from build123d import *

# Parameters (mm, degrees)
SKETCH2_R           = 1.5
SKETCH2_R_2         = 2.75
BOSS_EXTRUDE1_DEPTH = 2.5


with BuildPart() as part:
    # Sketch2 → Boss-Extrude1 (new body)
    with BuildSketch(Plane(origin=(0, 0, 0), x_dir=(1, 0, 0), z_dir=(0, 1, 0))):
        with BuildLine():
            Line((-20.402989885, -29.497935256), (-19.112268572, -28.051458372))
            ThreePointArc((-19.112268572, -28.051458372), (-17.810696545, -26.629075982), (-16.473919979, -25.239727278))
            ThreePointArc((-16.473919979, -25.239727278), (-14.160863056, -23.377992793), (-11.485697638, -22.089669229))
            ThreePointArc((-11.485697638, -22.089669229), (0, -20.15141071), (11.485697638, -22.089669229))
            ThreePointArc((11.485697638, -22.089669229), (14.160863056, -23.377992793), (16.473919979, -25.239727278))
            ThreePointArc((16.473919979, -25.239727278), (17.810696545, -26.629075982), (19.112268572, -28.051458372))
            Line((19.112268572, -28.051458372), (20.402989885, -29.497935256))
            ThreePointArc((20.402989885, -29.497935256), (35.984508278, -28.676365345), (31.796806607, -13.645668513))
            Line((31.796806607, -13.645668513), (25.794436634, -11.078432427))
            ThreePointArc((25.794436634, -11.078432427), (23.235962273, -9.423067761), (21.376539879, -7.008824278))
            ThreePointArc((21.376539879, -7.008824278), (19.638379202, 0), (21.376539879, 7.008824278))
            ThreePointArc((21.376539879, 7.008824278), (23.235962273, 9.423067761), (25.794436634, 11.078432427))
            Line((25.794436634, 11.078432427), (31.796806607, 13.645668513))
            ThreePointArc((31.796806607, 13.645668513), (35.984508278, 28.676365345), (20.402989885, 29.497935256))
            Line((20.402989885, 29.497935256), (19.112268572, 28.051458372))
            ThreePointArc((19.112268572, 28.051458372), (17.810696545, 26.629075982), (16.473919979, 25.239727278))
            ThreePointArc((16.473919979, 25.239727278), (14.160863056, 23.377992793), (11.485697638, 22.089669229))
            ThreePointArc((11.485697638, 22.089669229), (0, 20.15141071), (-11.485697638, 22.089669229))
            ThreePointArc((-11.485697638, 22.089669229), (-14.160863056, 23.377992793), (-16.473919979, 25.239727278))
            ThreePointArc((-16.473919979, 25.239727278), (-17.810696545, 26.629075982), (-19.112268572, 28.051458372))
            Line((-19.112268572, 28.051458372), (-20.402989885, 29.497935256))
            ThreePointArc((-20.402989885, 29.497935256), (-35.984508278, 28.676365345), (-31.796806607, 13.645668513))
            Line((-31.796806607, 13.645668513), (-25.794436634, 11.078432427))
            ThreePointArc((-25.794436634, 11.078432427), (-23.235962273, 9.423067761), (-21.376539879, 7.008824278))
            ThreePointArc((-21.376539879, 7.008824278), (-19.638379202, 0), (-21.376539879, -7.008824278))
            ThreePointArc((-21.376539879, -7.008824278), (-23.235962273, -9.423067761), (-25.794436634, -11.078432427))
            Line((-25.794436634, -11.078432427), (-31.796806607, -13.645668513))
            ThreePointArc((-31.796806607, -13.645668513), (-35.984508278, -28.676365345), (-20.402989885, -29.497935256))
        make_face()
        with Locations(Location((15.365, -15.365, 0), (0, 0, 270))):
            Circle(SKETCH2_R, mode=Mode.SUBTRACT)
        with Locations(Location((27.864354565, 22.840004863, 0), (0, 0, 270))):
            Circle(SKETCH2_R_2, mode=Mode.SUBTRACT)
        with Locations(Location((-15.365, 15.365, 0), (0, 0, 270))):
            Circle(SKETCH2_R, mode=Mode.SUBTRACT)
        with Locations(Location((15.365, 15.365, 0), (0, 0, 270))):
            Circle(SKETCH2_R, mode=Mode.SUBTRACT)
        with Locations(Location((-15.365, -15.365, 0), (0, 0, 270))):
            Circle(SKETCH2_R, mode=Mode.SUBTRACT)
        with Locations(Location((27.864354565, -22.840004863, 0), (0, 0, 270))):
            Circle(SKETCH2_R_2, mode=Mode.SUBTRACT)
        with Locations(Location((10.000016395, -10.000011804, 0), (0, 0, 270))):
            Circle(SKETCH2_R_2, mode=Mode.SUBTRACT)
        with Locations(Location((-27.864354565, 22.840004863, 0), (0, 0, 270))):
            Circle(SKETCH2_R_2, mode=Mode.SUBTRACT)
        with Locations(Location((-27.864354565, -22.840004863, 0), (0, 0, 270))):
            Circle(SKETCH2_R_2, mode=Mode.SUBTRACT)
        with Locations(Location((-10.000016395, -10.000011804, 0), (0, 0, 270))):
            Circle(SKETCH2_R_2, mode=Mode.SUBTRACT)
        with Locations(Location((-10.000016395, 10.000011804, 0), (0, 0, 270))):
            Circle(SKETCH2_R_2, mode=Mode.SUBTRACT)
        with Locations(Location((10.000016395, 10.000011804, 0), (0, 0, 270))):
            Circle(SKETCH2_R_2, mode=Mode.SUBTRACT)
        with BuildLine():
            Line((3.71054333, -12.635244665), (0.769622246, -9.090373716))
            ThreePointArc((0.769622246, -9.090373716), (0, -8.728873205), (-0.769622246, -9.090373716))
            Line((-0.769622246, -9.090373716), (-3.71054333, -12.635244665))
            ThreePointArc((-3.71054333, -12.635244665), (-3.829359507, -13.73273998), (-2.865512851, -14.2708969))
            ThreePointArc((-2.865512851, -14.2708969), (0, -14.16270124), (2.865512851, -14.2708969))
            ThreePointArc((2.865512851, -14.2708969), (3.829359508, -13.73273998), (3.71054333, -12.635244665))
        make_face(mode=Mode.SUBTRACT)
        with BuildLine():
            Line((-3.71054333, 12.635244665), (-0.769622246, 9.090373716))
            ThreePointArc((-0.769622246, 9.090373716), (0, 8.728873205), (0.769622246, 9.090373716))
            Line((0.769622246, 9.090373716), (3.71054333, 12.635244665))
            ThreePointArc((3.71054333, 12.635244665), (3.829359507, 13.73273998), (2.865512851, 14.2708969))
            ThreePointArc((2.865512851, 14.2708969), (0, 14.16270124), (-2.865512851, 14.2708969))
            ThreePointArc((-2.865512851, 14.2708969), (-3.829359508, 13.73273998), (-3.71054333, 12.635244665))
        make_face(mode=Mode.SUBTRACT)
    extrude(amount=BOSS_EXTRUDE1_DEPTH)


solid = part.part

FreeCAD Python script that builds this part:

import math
import FreeCAD as App
import Part
import Sketcher
Q = App.Units.Quantity

doc = App.newDocument("Part")
params = doc.addObject("Spreadsheet::Sheet", "Params")
for row, (alias, value) in enumerate([
    ("sketch1_diameter", "3 mm"),
    ("sketch1_radius", "77 mm"),
    ("sketch1_radius2", "13 mm"),
    ("sketch1_radius3", "35 mm"),
    ("sketch1_radius4", "10 mm"),
    ("pad1_length", "2.5 mm"),
], start=1):
    params.set(f"A{row}", alias)
    params.set(f"B{row}", "=" + value)
    params.setAlias(f"B{row}", alias)

body = doc.addObject("PartDesign::Body", "Body")

sketch1 = body.newObject("Sketcher::SketchObject", "Sketch")
sketch1.AttachmentSupport = (doc.getObject("XZ_Plane"), [""])
sketch1.MapMode = "FlatFace"
sketch1.addGeometry([
    Part.LineSegment(App.Vector(-20.4, 29.5, 0), App.Vector(-19.1, 28.1, 0)),
    Part.ArcOfCircle(Part.Circle(App.Vector(38.3, 79.3, 0), App.Vector(0, 0, 1), 77), math.radians(-138.26), math.radians(-135.39)),
    Part.ArcOfCircle(Part.Circle(App.Vector(-7.2, 34.4, 0), App.Vector(0, 0, 1), 13), math.radians(-135), math.radians(-109)),
    Part.ArcOfCircle(Part.Circle(App.Vector(0, 55.2, 0), App.Vector(0, 0, 1), 35), math.radians(-109), math.radians(-71)),
    Part.ArcOfCircle(Part.Circle(App.Vector(7.2, 34.4, 0), App.Vector(0, 0, 1), 13), math.radians(-71), math.radians(-45)),
    Part.ArcOfCircle(Part.Circle(App.Vector(-38.3, 79.3, 0), App.Vector(0, 0, 1), 77), math.radians(-44.61), math.radians(-41.74)),
    Part.LineSegment(App.Vector(19.1, 28.1, 0), App.Vector(20.4, 29.5, 0)),
    Part.ArcOfCircle(Part.Circle(App.Vector(27.9, 22.8, 0), App.Vector(0, 0, 1), 10), math.radians(-67), math.radians(138)),
    Part.LineSegment(App.Vector(31.8, 13.6, 0), App.Vector(25.8, 11.1, 0)),
    Part.ArcOfCircle(Part.Circle(App.Vector(29.3, 2.8, 0), App.Vector(0, 0, 1), 9), math.radians(113), math.radians(152)),
    Part.ArcOfCircle(Part.Circle(App.Vector(34.6, 0, 0), App.Vector(0, 0, 1), 15), math.radians(152), math.radians(208)),
    Part.ArcOfCircle(Part.Circle(App.Vector(29.3, -2.8, 0), App.Vector(0, 0, 1), 9), math.radians(-152), math.radians(-113)),
    Part.LineSegment(App.Vector(25.8, -11.1, 0), App.Vector(31.8, -13.6, 0)),
    Part.ArcOfCircle(Part.Circle(App.Vector(27.9, -22.8, 0), App.Vector(0, 0, 1), 10), math.radians(-138), math.radians(67)),
    Part.LineSegment(App.Vector(20.4, -29.5, 0), App.Vector(19.1, -28.1, 0)),
    Part.ArcOfCircle(Part.Circle(App.Vector(-38.3, -79.3, 0), App.Vector(0, 0, 1), 77), math.radians(41.74), math.radians(44.61)),
    Part.ArcOfCircle(Part.Circle(App.Vector(7.2, -34.4, 0), App.Vector(0, 0, 1), 13), math.radians(45), math.radians(71)),
    Part.ArcOfCircle(Part.Circle(App.Vector(0, -55.2, 0), App.Vector(0, 0, 1), 35), math.radians(71), math.radians(109)),
    Part.ArcOfCircle(Part.Circle(App.Vector(-7.2, -34.4, 0), App.Vector(0, 0, 1), 13), math.radians(109), math.radians(135)),
    Part.ArcOfCircle(Part.Circle(App.Vector(38.3, -79.3, 0), App.Vector(0, 0, 1), 77), math.radians(135.39), math.radians(138.26)),
    Part.LineSegment(App.Vector(-19.1, -28.1, 0), App.Vector(-20.4, -29.5, 0)),
    Part.ArcOfCircle(Part.Circle(App.Vector(-27.9, -22.8, 0), App.Vector(0, 0, 1), 10), math.radians(113), math.radians(318)),
    Part.LineSegment(App.Vector(-31.8, -13.6, 0), App.Vector(-25.8, -11.1, 0)),
    Part.ArcOfCircle(Part.Circle(App.Vector(-29.3, -2.8, 0), App.Vector(0, 0, 1), 9), math.radians(-67), math.radians(-28)),
    Part.ArcOfCircle(Part.Circle(App.Vector(-34.6, 0, 0), App.Vector(0, 0, 1), 15), math.radians(-28), math.radians(28)),
    Part.ArcOfCircle(Part.Circle(App.Vector(-29.3, 2.8, 0), App.Vector(0, 0, 1), 9), math.radians(28), math.radians(67)),
    Part.LineSegment(App.Vector(-25.8, 11.1, 0), App.Vector(-31.8, 13.6, 0)),
    Part.ArcOfCircle(Part.Circle(App.Vector(-27.9, 22.8, 0), App.Vector(0, 0, 1), 10), math.radians(42), math.radians(247)),
    Part.Circle(App.Vector(-27.9, 22.8, 0), App.Vector(0, 0, 1), 2.8),
    Part.Circle(App.Vector(-15.4, 15.4, 0), App.Vector(0, 0, 1), 1.5),
    Part.Circle(App.Vector(-10, 10, 0), App.Vector(0, 0, 1), 2.8),
    Part.Circle(App.Vector(27.9, 22.8, 0), App.Vector(0, 0, 1), 2.8),
    Part.Circle(App.Vector(15.4, 15.4, 0), App.Vector(0, 0, 1), 1.5),
    Part.LineSegment(App.Vector(0.8, 9.1, 0), App.Vector(3.7, 12.6, 0)),
    Part.ArcOfCircle(Part.Circle(App.Vector(2.9, 13.3, 0), App.Vector(0, 0, 1), 1), math.radians(-40), math.radians(94)),
    Part.ArcOfCircle(Part.Circle(App.Vector(0, 52.2, 0), App.Vector(0, 0, 1), 38), math.radians(-94.32), math.radians(-85.68)),
    Part.ArcOfCircle(Part.Circle(App.Vector(-2.9, 13.3, 0), App.Vector(0, 0, 1), 1), math.radians(86), math.radians(220)),
    Part.LineSegment(App.Vector(-3.7, 12.6, 0), App.Vector(-0.8, 9.1, 0)),
    Part.ArcOfCircle(Part.Circle(App.Vector(0, 9.7, 0), App.Vector(0, 0, 1), 1), math.radians(-140), math.radians(-40)),
    Part.Circle(App.Vector(10, 10, 0), App.Vector(0, 0, 1), 2.8),
    Part.Circle(App.Vector(-10, -10, 0), App.Vector(0, 0, 1), 2.8),
    Part.LineSegment(App.Vector(-0.8, -9.1, 0), App.Vector(-3.7, -12.6, 0)),
    Part.ArcOfCircle(Part.Circle(App.Vector(-2.9, -13.3, 0), App.Vector(0, 0, 1), 1), math.radians(140), math.radians(274)),
    Part.ArcOfCircle(Part.Circle(App.Vector(0, -52.2, 0), App.Vector(0, 0, 1), 38), math.radians(85.68), math.radians(94.32)),
    Part.ArcOfCircle(Part.Circle(App.Vector(2.9, -13.3, 0), App.Vector(0, 0, 1), 1), math.radians(-94), math.radians(40)),
    Part.LineSegment(App.Vector(3.7, -12.6, 0), App.Vector(0.8, -9.1, 0)),
    Part.ArcOfCircle(Part.Circle(App.Vector(0, -9.7, 0), App.Vector(0, 0, 1), 1), math.radians(40), math.radians(140)),
    Part.Circle(App.Vector(-15.4, -15.4, 0), App.Vector(0, 0, 1), 1.5),
    Part.Circle(App.Vector(-27.9, -22.8, 0), App.Vector(0, 0, 1), 2.8),
    Part.Circle(App.Vector(10, -10, 0), App.Vector(0, 0, 1), 2.8),
    Part.Circle(App.Vector(15.4, -15.4, 0), App.Vector(0, 0, 1), 1.5),
    Part.Circle(App.Vector(27.9, -22.8, 0), App.Vector(0, 0, 1), 2.8),
], False)
sketch1.addConstraint([
    Sketcher.Constraint("Tangent", 0, 2, 1, 1),
    Sketcher.Constraint("Tangent", 1, 2, 2, 1),
    Sketcher.Constraint("Tangent", 2, 2, 3, 1),
    Sketcher.Constraint("Tangent", 3, 2, 4, 1),
    Sketcher.Constraint("Tangent", 4, 2, 5, 1),
    Sketcher.Constraint("Tangent", 5, 2, 6, 1),
    Sketcher.Constraint("Tangent", 6, 2, 7, 2),
    Sketcher.Constraint("Tangent", 7, 1, 8, 1),
    Sketcher.Constraint("Tangent", 8, 2, 9, 1),
    Sketcher.Constraint("Tangent", 9, 2, 10, 1),
    Sketcher.Constraint("Tangent", 10, 2, 11, 1),
    Sketcher.Constraint("Tangent", 11, 2, 12, 1),
    Sketcher.Constraint("Tangent", 12, 2, 13, 2),
    Sketcher.Constraint("Tangent", 13, 1, 14, 1),
    Sketcher.Constraint("Tangent", 14, 2, 15, 1),
    Sketcher.Constraint("Tangent", 15, 2, 16, 1),
    Sketcher.Constraint("Tangent", 16, 2, 17, 1),
    Sketcher.Constraint("Tangent", 17, 2, 18, 1),
    Sketcher.Constraint("Tangent", 18, 2, 19, 1),
    Sketcher.Constraint("Tangent", 19, 2, 20, 1),
    Sketcher.Constraint("Tangent", 20, 2, 21, 2),
    Sketcher.Constraint("Tangent", 21, 1, 22, 1),
    Sketcher.Constraint("Tangent", 22, 2, 23, 1),
    Sketcher.Constraint("Tangent", 23, 2, 24, 1),
    Sketcher.Constraint("Tangent", 24, 2, 25, 1),
    Sketcher.Constraint("Tangent", 25, 2, 26, 1),
    Sketcher.Constraint("Tangent", 26, 2, 27, 2),
    Sketcher.Constraint("Tangent", 27, 1, 0, 1),
    Sketcher.Constraint("Tangent", 33, 2, 34, 1),
    Sketcher.Constraint("Tangent", 34, 2, 35, 2),
    Sketcher.Constraint("Tangent", 35, 1, 36, 1),
    Sketcher.Constraint("Tangent", 36, 2, 37, 1),
    Sketcher.Constraint("Tangent", 37, 2, 38, 1),
    Sketcher.Constraint("Tangent", 38, 2, 33, 1),
    Sketcher.Constraint("Tangent", 41, 2, 42, 1),
    Sketcher.Constraint("Tangent", 42, 2, 43, 2),
    Sketcher.Constraint("Tangent", 43, 1, 44, 1),
    Sketcher.Constraint("Tangent", 44, 2, 45, 1),
    Sketcher.Constraint("Tangent", 45, 2, 46, 1),
    Sketcher.Constraint("Tangent", 46, 2, 41, 1),
    Sketcher.Constraint("Coincident", 28, 3, 27, 3),
    Sketcher.Constraint("Coincident", 31, 3, 7, 3),
    Sketcher.Constraint("Coincident", 48, 3, 21, 3),
    Sketcher.Constraint("Coincident", 51, 3, 13, 3),
    Sketcher.Constraint("Equal", 2, 4),
    Sketcher.Constraint("Equal", 1, 5),
    Sketcher.Constraint("Equal", 9, 11),
    Sketcher.Constraint("Equal", 7, 13),
    Sketcher.Constraint("Equal", 5, 15),
    Sketcher.Constraint("Equal", 4, 16),
    Sketcher.Constraint("Equal", 3, 17),
    Sketcher.Constraint("Equal", 16, 18),
    Sketcher.Constraint("Equal", 15, 19),
    Sketcher.Constraint("Equal", 13, 21),
    Sketcher.Constraint("Equal", 11, 23),
    Sketcher.Constraint("Equal", 10, 24),
    Sketcher.Constraint("Equal", 23, 25),
    Sketcher.Constraint("Equal", 21, 27),
    Sketcher.Constraint("Equal", 28, 30),
    Sketcher.Constraint("Equal", 30, 31),
    Sketcher.Constraint("Equal", 29, 32),
    Sketcher.Constraint("Equal", 34, 36),
    Sketcher.Constraint("Equal", 36, 38),
    Sketcher.Constraint("Equal", 31, 39),
    Sketcher.Constraint("Equal", 39, 40),
    Sketcher.Constraint("Equal", 38, 42),
    Sketcher.Constraint("Equal", 35, 43),
    Sketcher.Constraint("Equal", 42, 44),
    Sketcher.Constraint("Equal", 44, 46),
    Sketcher.Constraint("Equal", 32, 47),
    Sketcher.Constraint("Equal", 40, 48),
    Sketcher.Constraint("Equal", 48, 49),
    Sketcher.Constraint("Equal", 47, 50),
    Sketcher.Constraint("Equal", 49, 51),
    Sketcher.Constraint("Symmetric", 1, 3, 15, 3, -1, 1),
    Sketcher.Constraint("Symmetric", 3, 3, 17, 3, -1, 1),
    Sketcher.Constraint("Symmetric", 5, 3, 19, 3, -1, 1),
    Sketcher.Constraint("Symmetric", 7, 3, 21, 3, -1, 1),
    Sketcher.Constraint("Symmetric", 9, 3, 23, 3, -1, 1),
    Sketcher.Constraint("Symmetric", 11, 3, 25, 3, -1, 1),
    Sketcher.Constraint("Symmetric", 13, 3, 27, 3, -1, 1),
    Sketcher.Constraint("Symmetric", 39, 3, 40, 3, -1, 1),
    Sketcher.Constraint("Symmetric", 34, 3, 42, 3, -1, 1),
    Sketcher.Constraint("Symmetric", 36, 3, 44, 3, -1, 1),
    Sketcher.Constraint("Symmetric", 38, 3, 46, 3, -1, 1),
    Sketcher.Constraint("Symmetric", 32, 3, 47, 3, -1, 1),
    Sketcher.Constraint("Symmetric", 30, 3, 49, 3, -1, 1),
    Sketcher.Constraint("Symmetric", 29, 3, 50, 3, -1, 1),
    Sketcher.Constraint("Symmetric", 2, 3, 4, 3, -2),
    Sketcher.Constraint("Symmetric", 13, 3, 21, 3, -2),
    Sketcher.Constraint("Symmetric", 11, 3, 23, 3, -2),
    Sketcher.Constraint("Symmetric", 29, 3, 32, 3, -2),
    Sketcher.Constraint("Symmetric", 34, 3, 36, 3, -2),
    Sketcher.Constraint("Symmetric", 30, 3, 39, 3, -2),
    Sketcher.Constraint("PointOnObject", 38, 3, -2),
    Sketcher.Constraint("Horizontal", 1, 3, 5, 3),
    Sketcher.Constraint("Diameter", 29, Q("3 mm")),
    Sketcher.Constraint("Radius", 1, Q("77 mm")),
    Sketcher.Constraint("Radius", 2, Q("13 mm")),
    Sketcher.Constraint("Radius", 3, Q("35 mm")),
    Sketcher.Constraint("Radius", 7, Q("10 mm")),
    Sketcher.Constraint("Radius", 9, Q("9 mm")),
    Sketcher.Constraint("Radius", 10, Q("15 mm")),
    Sketcher.Constraint("Radius", 34, Q("1 mm")),
    Sketcher.Constraint("Radius", 35, Q("38 mm")),
    Sketcher.Constraint("Diameter", 28, Q("5.5 mm")),
    Sketcher.Constraint("DistanceX", 29, 3, -1, 1, Q("15.365 mm")),
    Sketcher.Constraint("DistanceY", -1, 1, 29, 3, Q("15.365 mm")),
    Sketcher.Constraint("DistanceY", -1, 1, 35, 3, Q("52.162701 mm")),
    Sketcher.Constraint("Distance", 33, Q("4.605988 mm")),
    Sketcher.Constraint("DistanceX", -1, 1, 1, 3, Q("38.340239 mm")),
    Sketcher.Constraint("DistanceX", 2, 3, -1, 1, Q("7.219581 mm")),
    Sketcher.Constraint("DistanceY", -1, 1, 3, 3, Q("55.151411 mm")),
    Sketcher.Constraint("DistanceY", -1, 1, 9, 3, Q("2.80353 mm")),
    Sketcher.Constraint("DistanceX", -1, 1, 10, 3, Q("34.638379 mm")),
    Sketcher.Constraint("DistanceY", -1, 1, 30, 3, Q("10.000012 mm")),
    Sketcher.Constraint("DistanceX", -1, 1, 34, 3, Q("2.940921 mm")),
    Sketcher.Constraint("DistanceX", 0, 2, -1, 1, Q("19.112269 mm")),
    Sketcher.Constraint("DistanceX", -1, 1, 6, 2, Q("20.40299 mm")),
    Sketcher.Constraint("DistanceX", 30, 3, -1, 1, Q("10.000016 mm")),
])
sketch1.setExpression("Constraints[96]", "Params.sketch1_diameter")
sketch1.setExpression("Constraints[97]", "Params.sketch1_radius")
sketch1.setExpression("Constraints[98]", "Params.sketch1_radius2")
sketch1.setExpression("Constraints[99]", "Params.sketch1_radius3")
sketch1.setExpression("Constraints[100]", "Params.sketch1_radius4")
pad1 = body.newObject("PartDesign::Pad", "Pad")
pad1.Profile = sketch1
pad1.setExpression("Length", "Params.pad1_length")
pad1.Reversed = True

doc.recompute()
